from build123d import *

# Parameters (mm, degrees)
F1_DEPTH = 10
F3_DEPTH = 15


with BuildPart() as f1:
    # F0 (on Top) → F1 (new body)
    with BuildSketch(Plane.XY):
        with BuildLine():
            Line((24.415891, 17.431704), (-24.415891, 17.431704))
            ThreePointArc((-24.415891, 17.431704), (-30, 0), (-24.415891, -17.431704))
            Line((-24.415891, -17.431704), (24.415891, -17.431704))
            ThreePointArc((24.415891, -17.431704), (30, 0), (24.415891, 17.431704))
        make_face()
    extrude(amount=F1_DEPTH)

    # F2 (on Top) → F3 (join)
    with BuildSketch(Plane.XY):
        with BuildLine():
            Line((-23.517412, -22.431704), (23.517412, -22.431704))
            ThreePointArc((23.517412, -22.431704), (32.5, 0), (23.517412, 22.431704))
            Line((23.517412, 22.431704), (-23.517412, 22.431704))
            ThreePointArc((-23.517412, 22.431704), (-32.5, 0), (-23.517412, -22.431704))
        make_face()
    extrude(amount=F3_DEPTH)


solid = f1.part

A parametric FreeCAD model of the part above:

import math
import FreeCAD as App
import Part
import Sketcher

V = App.Vector

doc = App.newDocument("Part")
body = doc.addObject("PartDesign::Body", "Body")

# Sketch on XY plane
sketch1 = body.newObject("Sketcher::SketchObject", "Sketch")
sketch1.AttachmentSupport = (doc.getObject("XY_Plane"), [""])
sketch1.MapMode = "FlatFace"
sketch1.addGeometry(Part.LineSegment(V(24, 17, 0), V(-24, 17, 0)), False)
sketch1.addGeometry(Part.ArcOfCircle(Part.Circle(V(0, 0, 0), V(0, 0, 1), 30), math.radians(144), math.radians(216)), False)
sketch1.addGeometry(Part.LineSegment(V(-24, -17, 0), V(24, -17, 0)), False)
sketch1.addGeometry(Part.ArcOfCircle(Part.Circle(V(0, 0, 0), V(0, 0, 1), 30), math.radians(-36), math.radians(36)), False)
sketch1.addConstraint(Sketcher.Constraint("Coincident", 0, 2, 1, 1))
sketch1.addConstraint(Sketcher.Constraint("Coincident", 1, 2, 2, 1))
sketch1.addConstraint(Sketcher.Constraint("Coincident", 2, 2, 3, 1))
sketch1.addConstraint(Sketcher.Constraint("Coincident", 3, 2, 0, 1))
sketch1.addConstraint(Sketcher.Constraint("Horizontal", 0))
sketch1.addConstraint(Sketcher.Constraint("Horizontal", 2))
sketch1.addConstraint(Sketcher.Constraint("Coincident", 1, 3, -1, 1))
sketch1.addConstraint(Sketcher.Constraint("Coincident", 3, 3, -1, 1))
sketch1.addConstraint(Sketcher.Constraint("Equal", 1, 3))
sketch1.addConstraint(Sketcher.Constraint("Vertical", 0, 2, 1, 2))
sketch1.addConstraint(Sketcher.Constraint("Radius", 1, 30.000003))
sketch1.addConstraint(Sketcher.Constraint("DistanceX", 0, 2, 0, 1, 48.831782))
pad1 = body.newObject("PartDesign::Pad", "Pad")
pad1.Profile = sketch1
pad1.Length = 10

# Sketch on XY plane
sketch2 = body.newObject("Sketcher::SketchObject", "Sketch001")
sketch2.AttachmentSupport = (doc.getObject("XY_Plane"), [""])
sketch2.MapMode = "FlatFace"
sketch2.addGeometry(Part.LineSegment(V(-24, -22, 0), V(24, -22, 0)), False)
sketch2.addGeometry(Part.ArcOfCircle(Part.Circle(V(0, 0, 0), V(0, 0, 1), 33), math.radians(-44), math.radians(44)), False)
sketch2.addGeometry(Part.LineSegment(V(24, 22, 0), V(-24, 22, 0)), False)
sketch2.addGeometry(Part.ArcOfCircle(Part.Circle(V(0, 0, 0), V(0, 0, 1), 33), math.radians(136), math.radians(224)), False)
sketch2.addConstraint(Sketcher.Constraint("Coincident", 0, 2, 1, 1))
sketch2.addConstraint(Sketcher.Constraint("Coincident", 1, 2, 2, 1))
sketch2.addConstraint(Sketcher.Constraint("Coincident", 2, 2, 3, 1))
sketch2.addConstraint(Sketcher.Constraint("Coincident", 3, 2, 0, 1))
sketch2.addConstraint(Sketcher.Constraint("Horizontal", 0))
sketch2.addConstraint(Sketcher.Constraint("Horizontal", 2))
sketch2.addConstraint(Sketcher.Constraint("Coincident", 1, 3, -1, 1))
sketch2.addConstraint(Sketcher.Constraint("Coincident", 3, 3, -1, 1))
sketch2.addConstraint(Sketcher.Constraint("Equal", 1, 3))
sketch2.addConstraint(Sketcher.Constraint("Vertical", 0, 2, 1, 2))
sketch2.addConstraint(Sketcher.Constraint("Radius", 1, 32.500001))
sketch2.addConstraint(Sketcher.Constraint("DistanceX", 0, 1, 0, 2, 47.034824))
pad2 = body.newObject("PartDesign::Pad", "Pad001")
pad2.Profile = sketch2
pad2.Length = 15

doc.recompute()
